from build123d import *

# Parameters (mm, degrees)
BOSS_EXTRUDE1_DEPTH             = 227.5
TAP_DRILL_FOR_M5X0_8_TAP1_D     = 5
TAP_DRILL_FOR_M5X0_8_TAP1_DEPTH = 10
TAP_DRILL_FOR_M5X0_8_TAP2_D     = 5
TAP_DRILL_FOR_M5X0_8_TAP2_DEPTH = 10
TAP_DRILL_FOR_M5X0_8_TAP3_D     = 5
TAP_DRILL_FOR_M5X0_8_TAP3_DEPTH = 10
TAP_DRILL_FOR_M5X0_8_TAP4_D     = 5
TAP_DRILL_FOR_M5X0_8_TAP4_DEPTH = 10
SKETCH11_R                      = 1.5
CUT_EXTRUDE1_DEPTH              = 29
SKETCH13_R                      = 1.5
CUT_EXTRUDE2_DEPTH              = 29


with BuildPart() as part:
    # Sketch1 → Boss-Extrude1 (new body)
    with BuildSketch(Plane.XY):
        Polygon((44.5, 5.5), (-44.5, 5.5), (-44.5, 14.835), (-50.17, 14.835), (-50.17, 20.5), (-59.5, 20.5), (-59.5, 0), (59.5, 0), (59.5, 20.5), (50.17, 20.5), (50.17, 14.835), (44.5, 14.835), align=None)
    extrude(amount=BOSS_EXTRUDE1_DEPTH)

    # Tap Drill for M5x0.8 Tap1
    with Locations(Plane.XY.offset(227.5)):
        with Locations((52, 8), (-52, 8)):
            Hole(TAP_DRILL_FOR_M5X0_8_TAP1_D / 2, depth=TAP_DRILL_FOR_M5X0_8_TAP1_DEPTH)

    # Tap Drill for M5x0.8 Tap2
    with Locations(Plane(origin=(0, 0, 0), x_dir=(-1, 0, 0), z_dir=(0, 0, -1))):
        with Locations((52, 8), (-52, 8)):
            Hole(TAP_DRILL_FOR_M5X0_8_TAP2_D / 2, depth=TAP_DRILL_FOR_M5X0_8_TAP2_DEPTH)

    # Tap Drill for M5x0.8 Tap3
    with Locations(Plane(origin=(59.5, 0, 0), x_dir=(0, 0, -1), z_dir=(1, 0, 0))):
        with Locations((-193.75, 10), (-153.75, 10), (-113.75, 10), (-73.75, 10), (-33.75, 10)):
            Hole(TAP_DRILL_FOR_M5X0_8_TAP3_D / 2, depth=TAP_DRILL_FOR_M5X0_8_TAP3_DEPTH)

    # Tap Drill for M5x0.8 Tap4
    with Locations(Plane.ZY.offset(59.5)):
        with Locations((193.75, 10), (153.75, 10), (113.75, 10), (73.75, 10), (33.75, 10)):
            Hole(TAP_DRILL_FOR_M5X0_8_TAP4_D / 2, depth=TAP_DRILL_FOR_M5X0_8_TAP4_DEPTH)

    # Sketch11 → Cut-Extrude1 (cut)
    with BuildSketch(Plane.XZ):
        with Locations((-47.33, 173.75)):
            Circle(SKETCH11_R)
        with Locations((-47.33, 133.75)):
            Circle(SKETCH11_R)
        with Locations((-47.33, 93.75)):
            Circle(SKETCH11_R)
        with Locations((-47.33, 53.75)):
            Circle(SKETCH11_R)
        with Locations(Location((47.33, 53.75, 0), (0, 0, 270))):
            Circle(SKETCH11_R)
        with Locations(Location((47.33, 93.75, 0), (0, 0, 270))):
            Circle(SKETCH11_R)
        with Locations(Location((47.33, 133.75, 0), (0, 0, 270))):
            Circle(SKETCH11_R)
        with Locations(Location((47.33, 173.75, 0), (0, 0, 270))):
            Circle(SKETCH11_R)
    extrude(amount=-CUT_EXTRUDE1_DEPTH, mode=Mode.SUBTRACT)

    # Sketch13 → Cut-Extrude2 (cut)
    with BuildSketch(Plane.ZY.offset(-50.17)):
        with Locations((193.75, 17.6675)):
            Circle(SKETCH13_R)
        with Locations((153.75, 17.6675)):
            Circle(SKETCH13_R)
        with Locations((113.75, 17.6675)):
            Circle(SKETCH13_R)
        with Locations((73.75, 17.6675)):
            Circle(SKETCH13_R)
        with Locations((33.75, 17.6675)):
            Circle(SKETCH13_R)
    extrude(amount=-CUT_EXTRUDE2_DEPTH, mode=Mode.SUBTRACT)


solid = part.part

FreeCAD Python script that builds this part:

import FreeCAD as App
import Part
import Sketcher
Q = App.Units.Quantity


def add_polygon(sketch, points):
    """Adds a closed chain of lines whose ends are joined by coincident constraints."""
    first, n = sketch.GeometryCount, len(points)
    for a, b in zip(points, points[1:] + points[:1]):
        sketch.addGeometry(Part.LineSegment(App.Vector(*a, 0), App.Vector(*b, 0)), False)
    for i in range(n):
        sketch.addConstraint(Sketcher.Constraint("Coincident", first + i, 2, first + (i + 1) % n, 1))

doc = App.newDocument("Part")
params = doc.addObject("Spreadsheet::Sheet", "Params")
for row, (alias, value) in enumerate([
    ("sketch1_width", "89 mm"),
    ("sketch1_width2", "119 mm"),
    ("sketch1_height", "20.5 mm"),
    ("sketch1_width3", "5.67 mm"),
    ("pad1_length", "227.5 mm"),
    ("sketch2_diameter", "5 mm"),
    ("hole_diameter", "5 mm"),
    ("hole_depth", "10 mm"),
    ("sketch3_diameter", "5 mm"),
    ("hole2_diameter", "5 mm"),
    ("hole2_depth", "10 mm"),
    ("sketch4_diameter", "5 mm"),
    ("hole3_diameter", "5 mm"),
    ("hole3_depth", "10 mm"),
    ("sketch5_diameter", "5 mm"),
    ("hole4_diameter", "5 mm"),
    ("hole4_depth", "10 mm"),
    ("sketch6_diameter", "3 mm"),
    ("pocket1_length", "29 mm"),
    ("sketch7_diameter", "3 mm"),
    ("pocket2_length", "29 mm"),
], start=1):
    params.set(f"A{row}", alias)
    params.set(f"B{row}", "=" + value)
    params.setAlias(f"B{row}", alias)

body = doc.addObject("PartDesign::Body", "Body")

sketch1 = body.newObject("Sketcher::SketchObject", "Sketch")
sketch1.AttachmentSupport = (doc.getObject("XY_Plane"), [""])
sketch1.MapMode = "FlatFace"
add_polygon(sketch1, [(44, 6), (-44, 6), (-44, 15), (-50, 15), (-50, 20), (-60, 20), (-60, 0), (60, 0), (60, 20), (50, 20), (50, 15), (44, 15)])
sketch1.addConstraint([
    Sketcher.Constraint("Horizontal", 0),
    Sketcher.Constraint("Vertical", 1),
    Sketcher.Constraint("Horizontal", 2),
    Sketcher.Constraint("Vertical", 3),
    Sketcher.Constraint("Horizontal", 4),
    Sketcher.Constraint("Vertical", 5),
    Sketcher.Constraint("Horizontal", 6),
    Sketcher.Constraint("Vertical", 7),
    Sketcher.Constraint("Horizontal", 8),
    Sketcher.Constraint("Vertical", 9),
    Sketcher.Constraint("Horizontal", 10),
    Sketcher.Constraint("Vertical", 11),
    Sketcher.Constraint("Symmetric", 5, 2, 6, 2, -1, 1),
    Sketcher.Constraint("Symmetric", 3, 2, 8, 2, -2),
    Sketcher.Constraint("Symmetric", 1, 2, 10, 2, -2),
    Sketcher.Constraint("DistanceX", 0, 2, 0, 1, Q("89 mm")),
    Sketcher.Constraint("DistanceX", 6, 1, 6, 2, Q("119 mm")),
    Sketcher.Constraint("DistanceY", 5, 2, 5, 1, Q("20.5 mm")),
    Sketcher.Constraint("DistanceY", 0, 2, 3, 2, Q("15 mm")),
    Sketcher.Constraint("DistanceX", 2, 2, 2, 1, Q("5.67 mm")),
    Sketcher.Constraint("DistanceY", 1, 1, 1, 2, Q("9.335 mm")),
])
sketch1.setExpression("Constraints[27]", "Params.sketch1_width")
sketch1.setExpression("Constraints[28]", "Params.sketch1_width2")
sketch1.setExpression("Constraints[29]", "Params.sketch1_height")
sketch1.setExpression("Constraints[31]", "Params.sketch1_width3")
pad1 = body.newObject("PartDesign::Pad", "Pad")
pad1.Profile = sketch1
pad1.setExpression("Length", "Params.pad1_length")

sketch2 = body.newObject("Sketcher::SketchObject", "Sketch001")
sketch2.AttachmentSupport = (doc.getObject("XY_Plane"), [""])
sketch2.MapMode = "FlatFace"
sketch2.AttachmentOffset = App.Placement(App.Vector(0, 0, 227.5), App.Rotation())
sketch2.addGeometry([
    Part.Circle(App.Vector(52, 8, 0), App.Vector(0, 0, 1), 2.5),
    Part.Circle(App.Vector(-52, 8, 0), App.Vector(0, 0, 1), 2.5),
], False)
sketch2.addConstraint([
    Sketcher.Constraint("Equal", 0, 1),
    Sketcher.Constraint("Symmetric", 0, 3, 1, 3, -2),
    Sketcher.Constraint("Diameter", 0, Q("5 mm")),
    Sketcher.Constraint("DistanceX", -1, 1, 0, 3, Q("52 mm")),
    Sketcher.Constraint("DistanceY", -1, 1, 0, 3, Q("8 mm")),
])
sketch2.setExpression("Constraints[2]", "Params.sketch2_diameter")
doc.recompute()
hole = body.newObject("PartDesign::Hole", "Hole")
hole.Profile = sketch2
hole.ThreadType = "None"
hole.setExpression("Diameter", "Params.hole_diameter")
hole.DepthType = "Dimension"
hole.setExpression("Depth", "Params.hole_depth")
hole.DrillPoint = "Flat"

sketch3 = body.newObject("Sketcher::SketchObject", "Sketch002")
sketch3.AttachmentSupport = (doc.getObject("XY_Plane"), [""])
sketch3.MapMode = "FlatFace"
sketch3.addGeometry([
    Part.Circle(App.Vector(-52, 8, 0), App.Vector(0, 0, 1), 2.5),
    Part.Circle(App.Vector(52, 8, 0), App.Vector(0, 0, 1), 2.5),
], False)
sketch3.addConstraint([
    Sketcher.Constraint("Equal", 0, 1),
    Sketcher.Constraint("Symmetric", 0, 3, 1, 3, -2),
    Sketcher.Constraint("Diameter", 0, Q("5 mm")),
    Sketcher.Constraint("DistanceX", 0, 3, -1, 1, Q("52 mm")),
    Sketcher.Constraint("DistanceY", -1, 1, 0, 3, Q("8 mm")),
])
sketch3.setExpression("Constraints[2]", "Params.sketch3_diameter")
doc.recompute()
hole2 = body.newObject("PartDesign::Hole", "Hole001")
hole2.Profile = sketch3
hole2.ThreadType = "None"
hole2.setExpression("Diameter", "Params.hole2_diameter")
hole2.DepthType = "Dimension"
hole2.setExpression("Depth", "Params.hole2_depth")
hole2.DrillPoint = "Flat"
hole2.Reversed = True

sketch4 = body.newObject("Sketcher::SketchObject", "Sketch003")
sketch4.AttachmentSupport = (doc.getObject("YZ_Plane"), [""])
sketch4.MapMode = "FlatFace"
sketch4.AttachmentOffset = App.Placement(App.Vector(0, 0, 59.5), App.Rotation())
sketch4.addGeometry([
    Part.Circle(App.Vector(10, 193.8, 0), App.Vector(0, 0, 1), 2.5),
    Part.Circle(App.Vector(10, 153.8, 0), App.Vector(0, 0, 1), 2.5),
    Part.Circle(App.Vector(10, 113.8, 0), App.Vector(0, 0, 1), 2.5),
    Part.Circle(App.Vector(10, 73.8, 0), App.Vector(0, 0, 1), 2.5),
    Part.Circle(App.Vector(10, 33.8, 0), App.Vector(0, 0, 1), 2.5),
], False)
sketch4.addConstraint([
    Sketcher.Constraint("Equal", 0, 1),
    Sketcher.Constraint("Equal", 1, 2),
    Sketcher.Constraint("Equal", 2, 3),
    Sketcher.Constraint("Equal", 3, 4),
    Sketcher.Constraint("Vertical", 0, 3, 1, 3),
    Sketcher.Constraint("Vertical", 1, 3, 2, 3),
    Sketcher.Constraint("Vertical", 2, 3, 3, 3),
    Sketcher.Constraint("Vertical", 3, 3, 4, 3),
    Sketcher.Constraint("Diameter", 0, Q("5 mm")),
    Sketcher.Constraint("DistanceX", -1, 1, 0, 3, Q("10 mm")),
    Sketcher.Constraint("DistanceY", 1, 3, 0, 3, Q("40 mm")),
    Sketcher.Constraint("DistanceY", 2, 3, 1, 3, Q("40 mm")),
    Sketcher.Constraint("DistanceY", 3, 3, 2, 3, Q("40 mm")),
    Sketcher.Constraint("DistanceY", 4, 3, 3, 3, Q("40 mm")),
    Sketcher.Constraint("DistanceY", -1, 1, 0, 3, Q("193.75 mm")),
])
sketch4.setExpression("Constraints[8]", "Params.sketch4_diameter")
doc.recompute()
hole3 = body.newObject("PartDesign::Hole", "Hole002")
hole3.Profile = sketch4
hole3.ThreadType = "None"
hole3.setExpression("Diameter", "Params.hole3_diameter")
hole3.DepthType = "Dimension"
hole3.setExpression("Depth", "Params.hole3_depth")
hole3.DrillPoint = "Flat"

sketch5 = body.newObject("Sketcher::SketchObject", "Sketch004")
sketch5.AttachmentSupport = (doc.getObject("YZ_Plane"), [""])
sketch5.MapMode = "FlatFace"
sketch5.AttachmentOffset = App.Placement(App.Vector(0, 0, -59.5), App.Rotation())
sketch5.addGeometry([
    Part.Circle(App.Vector(10, 193.8, 0), App.Vector(0, 0, 1), 2.5),
    Part.Circle(App.Vector(10, 153.8, 0), App.Vector(0, 0, 1), 2.5),
    Part.Circle(App.Vector(10, 113.8, 0), App.Vector(0, 0, 1), 2.5),
    Part.Circle(App.Vector(10, 73.8, 0), App.Vector(0, 0, 1), 2.5),
    Part.Circle(App.Vector(10, 33.8, 0), App.Vector(0, 0, 1), 2.5),
], False)
sketch5.addConstraint([
    Sketcher.Constraint("Equal", 0, 1),
    Sketcher.Constraint("Equal", 1, 2),
    Sketcher.Constraint("Equal", 2, 3),
    Sketcher.Constraint("Equal", 3, 4),
    Sketcher.Constraint("Vertical", 0, 3, 1, 3),
    Sketcher.Constraint("Vertical", 1, 3, 2, 3),
    Sketcher.Constraint("Vertical", 2, 3, 3, 3),
    Sketcher.Constraint("Vertical", 3, 3, 4, 3),
    Sketcher.Constraint("Diameter", 0, Q("5 mm")),
    Sketcher.Constraint("DistanceX", -1, 1, 0, 3, Q("10 mm")),
    Sketcher.Constraint("DistanceY", 1, 3, 0, 3, Q("40 mm")),
    Sketcher.Constraint("DistanceY", 2, 3, 1, 3, Q("40 mm")),
    Sketcher.Constraint("DistanceY", 3, 3, 2, 3, Q("40 mm")),
    Sketcher.Constraint("DistanceY", 4, 3, 3, 3, Q("40 mm")),
    Sketcher.Constraint("DistanceY", -1, 1, 0, 3, Q("193.75 mm")),
])
sketch5.setExpression("Constraints[8]", "Params.sketch5_diameter")
doc.recompute()
hole4 = body.newObject("PartDesign::Hole", "Hole003")
hole4.Profile = sketch5
hole4.ThreadType = "None"
hole4.setExpression("Diameter", "Params.hole4_diameter")
hole4.DepthType = "Dimension"
hole4.setExpression("Depth", "Params.hole4_depth")
hole4.DrillPoint = "Flat"
hole4.Reversed = True

sketch6 = body.newObject("Sketcher::SketchObject", "Sketch005")
sketch6.AttachmentSupport = (doc.getObject("XZ_Plane"), [""])
sketch6.MapMode = "FlatFace"
sketch6.addGeometry([
    Part.Circle(App.Vector(-47.3, 173.8, 0), App.Vector(0, 0, 1), 1.5),
    Part.Circle(App.Vector(-47.3, 133.8, 0), App.Vector(0, 0, 1), 1.5),
    Part.Circle(App.Vector(-47.3, 93.8, 0), App.Vector(0, 0, 1), 1.5),
    Part.Circle(App.Vector(-47.3, 53.8, 0), App.Vector(0, 0, 1), 1.5),
    Part.Circle(App.Vector(47.3, 53.8, 0), App.Vector(0, 0, 1), 1.5),
    Part.Circle(App.Vector(47.3, 93.8, 0), App.Vector(0, 0, 1), 1.5),
    Part.Circle(App.Vector(47.3, 133.8, 0), App.Vector(0, 0, 1), 1.5),
    Part.Circle(App.Vector(47.3, 173.8, 0), App.Vector(0, 0, 1), 1.5),
], False)
sketch6.addConstraint([
    Sketcher.Constraint("Equal", 0, 1),
    Sketcher.Constraint("Equal", 1, 2),
    Sketcher.Constraint("Equal", 2, 3),
    Sketcher.Constraint("Equal", 3, 4),
    Sketcher.Constraint("Equal", 4, 5),
    Sketcher.Constraint("Equal", 5, 6),
    Sketcher.Constraint("Equal", 6, 7),
    Sketcher.Constraint("Symmetric", 3, 3, 4, 3, -2),
    Sketcher.Constraint("Symmetric", 2, 3, 5, 3, -2),
    Sketcher.Constraint("Symmetric", 1, 3, 6, 3, -2),
    Sketcher.Constraint("Symmetric", 0, 3, 7, 3, -2),
    Sketcher.Constraint("Vertical", 0, 3, 1, 3),
    Sketcher.Constraint("Vertical", 1, 3, 2, 3),
    Sketcher.Constraint("Vertical", 2, 3, 3, 3),
    Sketcher.Constraint("Diameter", 0, Q("3 mm")),
    Sketcher.Constraint("DistanceY", 1, 3, 0, 3, Q("40 mm")),
    Sketcher.Constraint("DistanceY", 2, 3, 1, 3, Q("40 mm")),
    Sketcher.Constraint("DistanceY", 3, 3, 2, 3, Q("40 mm")),
    Sketcher.Constraint("DistanceX", 0, 3, -1, 1, Q("47.33 mm")),
    Sketcher.Constraint("DistanceY", -1, 1, 0, 3, Q("173.75 mm")),
])
sketch6.setExpression("Constraints[14]", "Params.sketch6_diameter")
pocket1 = body.newObject("PartDesign::Pocket", "Pocket")
pocket1.Profile = sketch6
pocket1.setExpression("Length", "Params.pocket1_length")

sketch7 = body.newObject("Sketcher::SketchObject", "Sketch006")
sketch7.AttachmentSupport = (doc.getObject("YZ_Plane"), [""])
sketch7.MapMode = "FlatFace"
sketch7.AttachmentOffset = App.Placement(App.Vector(0, 0, 50.17), App.Rotation())
sketch7.addGeometry([
    Part.Circle(App.Vector(17.7, 193.8, 0), App.Vector(0, 0, 1), 1.5),
    Part.Circle(App.Vector(17.7, 153.8, 0), App.Vector(0, 0, 1), 1.5),
    Part.Circle(App.Vector(17.7, 113.8, 0), App.Vector(0, 0, 1), 1.5),
    Part.Circle(App.Vector(17.7, 73.8, 0), App.Vector(0, 0, 1), 1.5),
    Part.Circle(App.Vector(17.7, 33.8, 0), App.Vector(0, 0, 1), 1.5),
], False)
sketch7.addConstraint([
    Sketcher.Constraint("Equal", 0, 1),
    Sketcher.Constraint("Equal", 1, 2),
    Sketcher.Constraint("Equal", 2, 3),
    Sketcher.Constraint("Equal", 3, 4),
    Sketcher.Constraint("Vertical", 0, 3, 1, 3),
    Sketcher.Constraint("Vertical", 1, 3, 2, 3),
    Sketcher.Constraint("Vertical", 2, 3, 3, 3),
    Sketcher.Constraint("Vertical", 3, 3, 4, 3),
    Sketcher.Constraint("Diameter", 0, Q("3 mm")),
    Sketcher.Constraint("DistanceY", 1, 3, 0, 3, Q("40 mm")),
    Sketcher.Constraint("DistanceY", 2, 3, 1, 3, Q("40 mm")),
    Sketcher.Constraint("DistanceY", 3, 3, 2, 3, Q("40 mm")),
    Sketcher.Constraint("DistanceY", 4, 3, 3, 3, Q("40 mm")),
    Sketcher.Constraint("DistanceY", -1, 1, 0, 3, Q("193.75 mm")),
    Sketcher.Constraint("DistanceX", -1, 1, 0, 3, Q("17.6675 mm")),
])
sketch7.setExpression("Constraints[8]", "Params.sketch7_diameter")
pocket2 = body.newObject("PartDesign::Pocket", "Pocket001")
pocket2.Profile = sketch7
pocket2.setExpression("Length", "Params.pocket2_length")
pocket2.Reversed = True

doc.recompute()
